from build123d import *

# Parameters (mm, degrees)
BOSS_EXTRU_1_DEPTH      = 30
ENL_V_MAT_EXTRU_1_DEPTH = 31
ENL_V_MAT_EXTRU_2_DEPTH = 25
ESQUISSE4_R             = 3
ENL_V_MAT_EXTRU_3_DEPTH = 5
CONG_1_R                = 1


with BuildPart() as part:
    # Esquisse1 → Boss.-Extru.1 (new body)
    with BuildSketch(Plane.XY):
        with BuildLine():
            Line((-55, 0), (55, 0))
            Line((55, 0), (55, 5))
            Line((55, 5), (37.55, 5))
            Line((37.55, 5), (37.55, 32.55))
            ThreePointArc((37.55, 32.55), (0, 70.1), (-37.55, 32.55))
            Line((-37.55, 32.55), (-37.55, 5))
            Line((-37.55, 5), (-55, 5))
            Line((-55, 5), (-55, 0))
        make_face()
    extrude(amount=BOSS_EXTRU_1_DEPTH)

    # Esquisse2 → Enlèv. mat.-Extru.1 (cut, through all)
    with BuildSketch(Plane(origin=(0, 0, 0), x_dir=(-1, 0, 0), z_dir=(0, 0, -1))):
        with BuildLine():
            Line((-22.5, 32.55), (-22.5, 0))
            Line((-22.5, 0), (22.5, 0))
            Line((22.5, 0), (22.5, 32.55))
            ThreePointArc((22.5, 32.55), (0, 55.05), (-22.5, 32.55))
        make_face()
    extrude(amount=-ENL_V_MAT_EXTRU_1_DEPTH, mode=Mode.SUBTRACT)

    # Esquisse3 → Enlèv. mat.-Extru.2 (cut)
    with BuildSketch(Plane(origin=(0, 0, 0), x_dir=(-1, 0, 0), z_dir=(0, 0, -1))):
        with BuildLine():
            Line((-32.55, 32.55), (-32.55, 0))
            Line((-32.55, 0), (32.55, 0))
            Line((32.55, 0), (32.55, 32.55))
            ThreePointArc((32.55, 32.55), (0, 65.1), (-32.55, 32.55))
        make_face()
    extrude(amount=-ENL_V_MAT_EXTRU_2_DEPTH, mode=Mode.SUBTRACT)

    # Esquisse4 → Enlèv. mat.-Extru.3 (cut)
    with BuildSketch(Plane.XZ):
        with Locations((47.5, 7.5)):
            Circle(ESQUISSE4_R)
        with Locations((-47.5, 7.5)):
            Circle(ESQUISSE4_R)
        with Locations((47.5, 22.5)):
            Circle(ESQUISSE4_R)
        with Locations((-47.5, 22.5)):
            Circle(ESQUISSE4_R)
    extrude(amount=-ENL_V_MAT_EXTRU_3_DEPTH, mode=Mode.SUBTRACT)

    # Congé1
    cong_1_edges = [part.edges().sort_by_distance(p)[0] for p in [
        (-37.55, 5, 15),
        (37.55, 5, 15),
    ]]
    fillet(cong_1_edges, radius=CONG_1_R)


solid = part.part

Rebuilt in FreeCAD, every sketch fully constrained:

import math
import FreeCAD as App
import Part
import Sketcher
from FreeCAD import Vector
Q = App.Units.Quantity


def edges_at(feature, points):
    """Names of the edges that pass closest to the given points."""
    edges = feature.Shape.Edges
    near = lambda p: min(range(len(edges)), key=lambda i: edges[i].distToShape(Part.Vertex(*p))[0])
    return sorted({f"Edge{near(p) + 1}" for p in points})

doc = App.newDocument("Part")
params = doc.addObject("Spreadsheet::Sheet", "Params")
for row, (alias, value) in enumerate([
    ("sketch1_width", "110 mm"),
    ("sketch1_height", "5 mm"),
    ("sketch1_radius", "37.55 mm"),
    ("sketch1_height2", "27.55 mm"),
    ("pad1_length", "30 mm"),
    ("sketch2_radius", "22.5 mm"),
    ("sketch2_height", "32.55 mm"),
    ("sketch3_radius", "32.55 mm"),
    ("sketch3_height", "32.55 mm"),
    ("pocket2_length", "25 mm"),
    ("sketch4_diameter", "6 mm"),
    ("pocket3_length", "5 mm"),
    ("fillet_radius", "1 mm"),
], start=1):
    params.set(f"A{row}", alias)
    params.set(f"B{row}", "=" + value)
    params.setAlias(f"B{row}", alias)

body = doc.addObject("PartDesign::Body", "Body")

# Sketch on XY plane
sketch1 = body.newObject("Sketcher::SketchObject", "Sketch")
sketch1.AttachmentSupport = (doc.getObject("XY_Plane"), [""])
sketch1.MapMode = "FlatFace"
sketch1.addGeometry([
    Part.LineSegment(Vector(-55, 0, 0), Vector(55, 0, 0)),  # 0
    Part.LineSegment(Vector(55, 0, 0), Vector(55, 5, 0)),  # 1
    Part.LineSegment(Vector(55, 5, 0), Vector(37.55, 5, 0)),  # 2
    Part.LineSegment(Vector(37.55, 5, 0), Vector(37.55, 32.55, 0)),  # 3
    Part.ArcOfCircle(Part.Circle(Vector(0, 32.55, 0), Vector(0, 0, 1), 37.55), math.radians(0), math.radians(180)),  # 4
    Part.LineSegment(Vector(-37.55, 32.55, 0), Vector(-37.55, 5, 0)),  # 5
    Part.LineSegment(Vector(-37.55, 5, 0), Vector(-55, 5, 0)),  # 6
    Part.LineSegment(Vector(-55, 5, 0), Vector(-55, 0, 0)),  # 7
], False)
sketch1.addConstraint([
    Sketcher.Constraint("Coincident", 0, 2, 1, 1),
    Sketcher.Constraint("Coincident", 1, 2, 2, 1),
    Sketcher.Constraint("Coincident", 2, 2, 3, 1),
    Sketcher.Constraint("Tangent", 3, 2, 4, 1),
    Sketcher.Constraint("Tangent", 4, 2, 5, 1),
    Sketcher.Constraint("Coincident", 5, 2, 6, 1),
    Sketcher.Constraint("Coincident", 6, 2, 7, 1),
    Sketcher.Constraint("Coincident", 7, 2, 0, 1),
    Sketcher.Constraint("Horizontal", 0),
    Sketcher.Constraint("Vertical", 1),
    Sketcher.Constraint("Horizontal", 2),
    Sketcher.Constraint("Vertical", 3),
    Sketcher.Constraint("Vertical", 5),
    Sketcher.Constraint("Horizontal", 6),
    Sketcher.Constraint("Vertical", 7),
    Sketcher.Constraint("Symmetric", 0, 2, 7, 2, -1, 1),
    Sketcher.Constraint("Symmetric", 2, 2, 5, 2, -2),
    Sketcher.Constraint("DistanceX", 0, 1, 0, 2, Q("110 mm")),
    Sketcher.Constraint("DistanceY", 1, 1, 1, 2, Q("5 mm")),
    Sketcher.Constraint("Radius", 4, Q("37.55 mm")),
    Sketcher.Constraint("DistanceY", 3, 1, 3, 2, Q("27.55 mm")),
])
sketch1.setExpression("Constraints[17]", "Params.sketch1_width")
sketch1.setExpression("Constraints[18]", "Params.sketch1_height")
sketch1.setExpression("Constraints[19]", "Params.sketch1_radius")
sketch1.setExpression("Constraints[20]", "Params.sketch1_height2")
pad1 = body.newObject("PartDesign::Pad", "Pad")
pad1.Profile = sketch1
pad1.setExpression("Length", "Params.pad1_length")

# Sketch on XY plane
sketch2 = body.newObject("Sketcher::SketchObject", "Sketch001")
sketch2.AttachmentSupport = (doc.getObject("XY_Plane"), [""])
sketch2.MapMode = "FlatFace"
sketch2.addGeometry([
    Part.LineSegment(Vector(22.5, 32.55, 0), Vector(22.5, 0, 0)),
    Part.LineSegment(Vector(22.5, 0, 0), Vector(-22.5, 0, 0)),
    Part.LineSegment(Vector(-22.5, 0, 0), Vector(-22.5, 32.55, 0)),
    Part.ArcOfCircle(Part.Circle(Vector(0, 32.55, 0), Vector(0, 0, 1), 22.5), math.radians(0), math.radians(180)),
], False)
sketch2.addConstraint([
    Sketcher.Constraint("Coincident", 0, 2, 1, 1),
    Sketcher.Constraint("Coincident", 1, 2, 2, 1),
    Sketcher.Constraint("Tangent", 2, 2, 3, 2),
    Sketcher.Constraint("Tangent", 3, 1, 0, 1),
    Sketcher.Constraint("Vertical", 0),
    Sketcher.Constraint("Horizontal", 1),
    Sketcher.Constraint("Vertical", 2),
    Sketcher.Constraint("Symmetric", 0, 2, 1, 2, -1, 1),
    Sketcher.Constraint("Radius", 3, Q("22.5 mm")),
    Sketcher.Constraint("DistanceY", 0, 2, 0, 1, Q("32.55 mm")),
])
sketch2.setExpression("Constraints[8]", "Params.sketch2_radius")
sketch2.setExpression("Constraints[9]", "Params.sketch2_height")
pocket1 = body.newObject("PartDesign::Pocket", "Pocket")
pocket1.Profile = sketch2
pocket1.Type = "ThroughAll"
pocket1.Reversed = True

# Sketch on XY plane
sketch3 = body.newObject("Sketcher::SketchObject", "Sketch002")
sketch3.AttachmentSupport = (doc.getObject("XY_Plane"), [""])
sketch3.MapMode = "FlatFace"
sketch3.addGeometry([
    Part.LineSegment(Vector(32.55, 32.55, 0), Vector(32.55, 0, 0)),
    Part.LineSegment(Vector(32.55, 0, 0), Vector(-32.55, 0, 0)),
    Part.LineSegment(Vector(-32.55, 0, 0), Vector(-32.55, 32.55, 0)),
    Part.ArcOfCircle(Part.Circle(Vector(0, 32.55, 0), Vector(0, 0, 1), 32.55), math.radians(0), math.radians(180)),
], False)
sketch3.addConstraint([
    Sketcher.Constraint("Coincident", 0, 2, 1, 1),
    Sketcher.Constraint("Coincident", 1, 2, 2, 1),
    Sketcher.Constraint("Tangent", 2, 2, 3, 2),
    Sketcher.Constraint("Tangent", 3, 1, 0, 1),
    Sketcher.Constraint("Vertical", 0),
    Sketcher.Constraint("Horizontal", 1),
    Sketcher.Constraint("Vertical", 2),
    Sketcher.Constraint("Symmetric", 0, 2, 1, 2, -1, 1),
    Sketcher.Constraint("Radius", 3, Q("32.55 mm")),
    Sketcher.Constraint("DistanceY", 0, 2, 0, 1, Q("32.55 mm")),
])
sketch3.setExpression("Constraints[8]", "Params.sketch3_radius")
sketch3.setExpression("Constraints[9]", "Params.sketch3_height")
pocket2 = body.newObject("PartDesign::Pocket", "Pocket001")
pocket2.Profile = sketch3
pocket2.setExpression("Length", "Params.pocket2_length")
pocket2.Reversed = True

# Sketch on XZ plane
sketch4 = body.newObject("Sketcher::SketchObject", "Sketch003")
sketch4.AttachmentSupport = (doc.getObject("XZ_Plane"), [""])
sketch4.MapMode = "FlatFace"
sketch4.addGeometry([
    Part.Circle(Vector(47.5, 7.5, 0), Vector(0, 0, 1), 3),
    Part.Circle(Vector(-47.5, 7.5, 0), Vector(0, 0, 1), 3),
    Part.Circle(Vector(47.5, 22.5, 0), Vector(0, 0, 1), 3),
    Part.Circle(Vector(-47.5, 22.5, 0), Vector(0, 0, 1), 3),
], False)
sketch4.addConstraint([
    Sketcher.Constraint("Equal", 0, 1),
    Sketcher.Constraint("Equal", 1, 2),
    Sketcher.Constraint("Equal", 2, 3),
    Sketcher.Constraint("Symmetric", 0, 3, 1, 3, -2),
    Sketcher.Constraint("Symmetric", 2, 3, 3, 3, -2),
    Sketcher.Constraint("Vertical", 0, 3, 2, 3),
    Sketcher.Constraint("Diameter", 0, Q("6 mm")),
    Sketcher.Constraint("DistanceX", 1, 3, 0, 3, Q("95 mm")),
    Sketcher.Constraint("DistanceY", 0, 3, 2, 3, Q("15 mm")),
    Sketcher.Constraint("DistanceY", -1, 1, 0, 3, Q("7.5 mm")),
])
sketch4.setExpression("Constraints[6]", "Params.sketch4_diameter")
pocket3 = body.newObject("PartDesign::Pocket", "Pocket002")
pocket3.Profile = sketch4
pocket3.setExpression("Length", "Params.pocket3_length")
doc.recompute()

fillet = body.newObject("PartDesign::Fillet", "Fillet")
fillet.Base = (pocket3, edges_at(pocket3, [(-37.55, 5, 15), (37.55, 5, 15)]))
fillet.setExpression("Radius", "Params.fillet_radius")

doc.recompute()
